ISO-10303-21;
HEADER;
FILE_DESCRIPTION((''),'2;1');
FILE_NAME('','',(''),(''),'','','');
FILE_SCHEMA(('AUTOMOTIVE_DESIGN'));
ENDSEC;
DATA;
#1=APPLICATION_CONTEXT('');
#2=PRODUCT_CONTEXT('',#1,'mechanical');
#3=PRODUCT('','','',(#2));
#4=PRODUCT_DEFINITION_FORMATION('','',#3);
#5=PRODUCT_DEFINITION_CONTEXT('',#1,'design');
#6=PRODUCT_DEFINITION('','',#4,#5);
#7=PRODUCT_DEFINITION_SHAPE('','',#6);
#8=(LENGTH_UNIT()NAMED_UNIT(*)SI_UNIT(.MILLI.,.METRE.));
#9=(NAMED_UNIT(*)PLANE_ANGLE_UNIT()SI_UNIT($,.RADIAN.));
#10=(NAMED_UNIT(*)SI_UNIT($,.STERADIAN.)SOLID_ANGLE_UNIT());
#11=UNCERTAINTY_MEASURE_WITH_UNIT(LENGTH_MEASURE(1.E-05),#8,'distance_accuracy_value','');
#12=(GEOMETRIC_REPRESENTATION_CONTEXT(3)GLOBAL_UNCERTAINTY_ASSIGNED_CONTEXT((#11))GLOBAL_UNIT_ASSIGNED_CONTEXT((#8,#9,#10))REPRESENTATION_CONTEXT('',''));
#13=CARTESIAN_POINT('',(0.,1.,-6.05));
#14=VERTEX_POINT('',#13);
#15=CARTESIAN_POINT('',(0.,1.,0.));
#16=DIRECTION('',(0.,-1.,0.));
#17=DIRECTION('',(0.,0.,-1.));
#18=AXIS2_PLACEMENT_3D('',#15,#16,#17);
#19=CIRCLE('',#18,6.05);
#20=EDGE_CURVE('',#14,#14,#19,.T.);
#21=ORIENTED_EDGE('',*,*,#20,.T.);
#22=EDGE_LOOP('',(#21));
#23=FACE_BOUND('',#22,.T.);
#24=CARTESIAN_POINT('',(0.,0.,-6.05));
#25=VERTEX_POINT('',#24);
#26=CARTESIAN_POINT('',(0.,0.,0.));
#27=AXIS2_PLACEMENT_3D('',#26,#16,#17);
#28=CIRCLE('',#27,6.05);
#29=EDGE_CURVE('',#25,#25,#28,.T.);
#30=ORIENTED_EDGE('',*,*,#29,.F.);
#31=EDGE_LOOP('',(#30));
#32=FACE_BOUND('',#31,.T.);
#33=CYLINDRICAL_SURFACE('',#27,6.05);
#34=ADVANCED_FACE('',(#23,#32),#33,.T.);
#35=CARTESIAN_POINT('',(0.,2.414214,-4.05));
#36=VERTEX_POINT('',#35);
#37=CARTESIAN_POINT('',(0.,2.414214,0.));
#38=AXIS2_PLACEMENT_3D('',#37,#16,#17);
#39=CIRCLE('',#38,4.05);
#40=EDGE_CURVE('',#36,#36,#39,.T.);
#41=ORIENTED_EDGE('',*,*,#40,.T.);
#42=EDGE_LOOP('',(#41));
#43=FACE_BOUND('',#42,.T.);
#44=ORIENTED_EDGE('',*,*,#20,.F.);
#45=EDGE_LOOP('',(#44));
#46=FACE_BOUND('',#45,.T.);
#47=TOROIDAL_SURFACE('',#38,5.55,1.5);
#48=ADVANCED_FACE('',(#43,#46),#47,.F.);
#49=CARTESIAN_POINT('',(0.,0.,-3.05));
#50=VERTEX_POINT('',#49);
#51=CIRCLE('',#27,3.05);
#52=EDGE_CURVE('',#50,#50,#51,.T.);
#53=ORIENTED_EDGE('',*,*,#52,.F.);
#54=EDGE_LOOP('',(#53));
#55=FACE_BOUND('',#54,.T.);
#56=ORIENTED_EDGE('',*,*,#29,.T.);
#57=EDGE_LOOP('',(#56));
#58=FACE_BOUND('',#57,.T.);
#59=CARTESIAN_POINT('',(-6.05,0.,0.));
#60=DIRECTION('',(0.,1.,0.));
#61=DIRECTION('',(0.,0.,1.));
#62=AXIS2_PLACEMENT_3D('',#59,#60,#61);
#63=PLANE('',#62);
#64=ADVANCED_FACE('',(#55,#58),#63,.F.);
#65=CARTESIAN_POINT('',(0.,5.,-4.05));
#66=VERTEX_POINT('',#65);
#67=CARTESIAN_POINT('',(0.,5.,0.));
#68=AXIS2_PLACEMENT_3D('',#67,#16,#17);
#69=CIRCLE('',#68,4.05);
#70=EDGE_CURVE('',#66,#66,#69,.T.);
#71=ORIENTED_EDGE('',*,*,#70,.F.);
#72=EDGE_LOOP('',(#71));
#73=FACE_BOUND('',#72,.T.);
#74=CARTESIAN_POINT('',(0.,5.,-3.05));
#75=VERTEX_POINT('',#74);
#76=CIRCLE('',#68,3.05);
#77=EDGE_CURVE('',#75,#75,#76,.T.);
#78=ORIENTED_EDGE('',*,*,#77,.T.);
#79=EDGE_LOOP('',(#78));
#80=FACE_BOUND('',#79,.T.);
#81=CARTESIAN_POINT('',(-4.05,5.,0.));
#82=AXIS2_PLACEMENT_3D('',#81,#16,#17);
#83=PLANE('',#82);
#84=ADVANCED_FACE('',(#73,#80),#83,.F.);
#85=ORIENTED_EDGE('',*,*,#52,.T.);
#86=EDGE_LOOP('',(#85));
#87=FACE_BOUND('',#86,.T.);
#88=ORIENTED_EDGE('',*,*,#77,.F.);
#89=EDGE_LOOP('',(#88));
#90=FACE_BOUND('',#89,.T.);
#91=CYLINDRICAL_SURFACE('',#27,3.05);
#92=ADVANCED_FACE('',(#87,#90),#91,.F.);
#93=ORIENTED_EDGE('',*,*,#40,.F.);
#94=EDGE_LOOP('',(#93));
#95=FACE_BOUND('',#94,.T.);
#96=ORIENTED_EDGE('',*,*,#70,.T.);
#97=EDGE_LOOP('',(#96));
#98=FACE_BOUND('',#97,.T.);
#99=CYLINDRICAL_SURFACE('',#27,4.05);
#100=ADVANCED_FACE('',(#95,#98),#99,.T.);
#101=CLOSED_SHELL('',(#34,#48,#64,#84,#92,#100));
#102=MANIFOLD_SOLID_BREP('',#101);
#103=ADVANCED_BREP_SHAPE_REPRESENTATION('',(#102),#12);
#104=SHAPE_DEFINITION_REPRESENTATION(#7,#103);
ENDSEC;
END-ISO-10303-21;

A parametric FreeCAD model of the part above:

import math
import FreeCAD as App
import Part
import Sketcher

doc = App.newDocument("Part")
body = doc.addObject("PartDesign::Body", "Body")

# Sketch on XY plane
sketch1 = body.newObject("Sketcher::SketchObject", "Sketch")
sketch1.AttachmentSupport = (doc.getObject("XY_Plane"), [""])
sketch1.MapMode = "FlatFace"
sketch1.addGeometry(Part.LineSegment(App.Vector(-4.05, 5, 0), App.Vector(-4.05, 2.414214, 0)), False)
sketch1.addGeometry(Part.ArcOfCircle(Part.Circle(App.Vector(-5.55, 2.414214, 0), App.Vector(0, 0, 1), 1.5), math.radians(-109.471221), math.radians(0)), False)
sketch1.addGeometry(Part.LineSegment(App.Vector(-6.05, 1, 0), App.Vector(-6.05, 0, 0)), False)
sketch1.addGeometry(Part.LineSegment(App.Vector(-6.05, 0, 0), App.Vector(-3.05, 0, 0)), False)
sketch1.addGeometry(Part.LineSegment(App.Vector(-3.05, 0, 0), App.Vector(-3.05, 5, 0)), False)
sketch1.addGeometry(Part.LineSegment(App.Vector(-3.05, 5, 0), App.Vector(-4.05, 5, 0)), False)
sketch1.addConstraint(Sketcher.Constraint("Tangent", 0, 2, 1, 2))
sketch1.addConstraint(Sketcher.Constraint("Coincident", 1, 1, 2, 1))
sketch1.addConstraint(Sketcher.Constraint("Coincident", 2, 2, 3, 1))
sketch1.addConstraint(Sketcher.Constraint("Coincident", 3, 2, 4, 1))
sketch1.addConstraint(Sketcher.Constraint("Coincident", 4, 2, 5, 1))
sketch1.addConstraint(Sketcher.Constraint("Coincident", 5, 2, 0, 1))
sketch1.addConstraint(Sketcher.Constraint("Vertical", 0))
sketch1.addConstraint(Sketcher.Constraint("Vertical", 2))
sketch1.addConstraint(Sketcher.Constraint("Horizontal", 3))
sketch1.addConstraint(Sketcher.Constraint("Vertical", 4))
sketch1.addConstraint(Sketcher.Constraint("Horizontal", 5))
sketch1.addConstraint(Sketcher.Constraint("PointOnObject", 2, 2, -1))
sketch1.addConstraint(Sketcher.Constraint("Equal", 5, 2))
sketch1.addConstraint(Sketcher.Constraint("Radius", 1, 1.5))
sketch1.addConstraint(Sketcher.Constraint("DistanceX", 3, 1, 3, 2, 3.0))
sketch1.addConstraint(Sketcher.Constraint("DistanceX", 5, 2, 5, 1, 1.0))
sketch1.addConstraint(Sketcher.Constraint("DistanceY", 4, 1, 4, 2, 5.0))
sketch1.addConstraint(Sketcher.Constraint("DistanceX", 1, 3, -1, 1, 5.55))
revolution = body.newObject("PartDesign::Revolution", "Revolution")
revolution.Profile = sketch1
revolution.ReferenceAxis = (sketch1, ["V_Axis"])
revolution.Angle = 360

doc.recompute()
